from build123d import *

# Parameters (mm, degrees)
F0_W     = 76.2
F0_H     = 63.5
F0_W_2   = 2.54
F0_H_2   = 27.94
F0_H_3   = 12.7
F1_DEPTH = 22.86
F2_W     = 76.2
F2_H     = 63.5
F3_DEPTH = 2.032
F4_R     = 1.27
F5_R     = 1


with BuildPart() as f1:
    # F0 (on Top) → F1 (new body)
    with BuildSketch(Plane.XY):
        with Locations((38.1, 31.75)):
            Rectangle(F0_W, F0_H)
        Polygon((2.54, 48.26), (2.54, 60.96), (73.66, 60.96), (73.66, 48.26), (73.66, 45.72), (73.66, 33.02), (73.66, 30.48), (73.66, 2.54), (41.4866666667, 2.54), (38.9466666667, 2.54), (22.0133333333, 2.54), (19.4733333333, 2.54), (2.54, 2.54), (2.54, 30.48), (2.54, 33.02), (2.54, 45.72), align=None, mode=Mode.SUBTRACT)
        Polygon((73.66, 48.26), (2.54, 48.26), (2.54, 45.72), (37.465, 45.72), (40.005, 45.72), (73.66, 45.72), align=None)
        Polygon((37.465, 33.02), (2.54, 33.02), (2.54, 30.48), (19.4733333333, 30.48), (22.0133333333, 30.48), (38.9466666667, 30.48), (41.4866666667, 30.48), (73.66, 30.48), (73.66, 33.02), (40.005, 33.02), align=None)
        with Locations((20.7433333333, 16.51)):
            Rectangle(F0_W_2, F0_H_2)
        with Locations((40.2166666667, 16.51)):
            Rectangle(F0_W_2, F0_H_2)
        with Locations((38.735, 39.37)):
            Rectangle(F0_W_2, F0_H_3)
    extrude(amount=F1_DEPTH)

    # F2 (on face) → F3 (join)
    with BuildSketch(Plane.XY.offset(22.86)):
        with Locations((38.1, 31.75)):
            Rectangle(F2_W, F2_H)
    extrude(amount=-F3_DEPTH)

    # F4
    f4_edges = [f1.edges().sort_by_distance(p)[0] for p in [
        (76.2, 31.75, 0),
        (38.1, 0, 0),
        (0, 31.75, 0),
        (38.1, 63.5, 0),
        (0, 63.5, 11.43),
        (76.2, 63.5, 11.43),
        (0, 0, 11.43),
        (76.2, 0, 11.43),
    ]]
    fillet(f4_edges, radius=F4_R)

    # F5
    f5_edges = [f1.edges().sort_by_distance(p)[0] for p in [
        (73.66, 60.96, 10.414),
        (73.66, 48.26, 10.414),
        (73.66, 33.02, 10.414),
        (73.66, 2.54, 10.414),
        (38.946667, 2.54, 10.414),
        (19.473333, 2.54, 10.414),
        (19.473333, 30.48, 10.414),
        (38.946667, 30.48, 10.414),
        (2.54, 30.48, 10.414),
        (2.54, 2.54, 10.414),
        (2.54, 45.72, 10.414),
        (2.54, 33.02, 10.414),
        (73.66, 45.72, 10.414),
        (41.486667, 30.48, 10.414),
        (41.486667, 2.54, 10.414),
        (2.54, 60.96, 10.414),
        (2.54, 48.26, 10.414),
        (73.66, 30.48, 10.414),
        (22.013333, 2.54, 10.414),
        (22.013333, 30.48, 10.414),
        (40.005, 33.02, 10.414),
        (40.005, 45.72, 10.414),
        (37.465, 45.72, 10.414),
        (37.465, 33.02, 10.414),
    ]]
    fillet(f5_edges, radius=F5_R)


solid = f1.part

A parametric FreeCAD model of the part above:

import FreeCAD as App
import Part
import Sketcher
Q = App.Units.Quantity


def edges_at(feature, points):
    """Names of the edges that pass closest to the given points."""
    edges = feature.Shape.Edges
    near = lambda p: min(range(len(edges)), key=lambda i: edges[i].distToShape(Part.Vertex(*p))[0])
    return sorted({f"Edge{near(p) + 1}" for p in points})

doc = App.newDocument("Part")
body = doc.addObject("PartDesign::Body", "Body")

# Sketch on XY plane
sketch1 = body.newObject("Sketcher::SketchObject", "Sketch")
sketch1.AttachmentSupport = (doc.getObject("XY_Plane"), [""])
sketch1.MapMode = "FlatFace"
sketch1.addGeometry([
    Part.LineSegment(App.Vector(0, 63.5, 0), App.Vector(0, 0, 0)),  # 0
    Part.LineSegment(App.Vector(0, 0, 0), App.Vector(76.2, 0, 0)),  # 1
    Part.LineSegment(App.Vector(76.2, 0, 0), App.Vector(76.2, 63.5, 0)),  # 2
    Part.LineSegment(App.Vector(76.2, 63.5, 0), App.Vector(0, 63.5, 0)),  # 3
    Part.LineSegment(App.Vector(2.54, 2.54, 0), App.Vector(2.54, 30.48, 0)),  # 4
    Part.LineSegment(App.Vector(2.54, 30.48, 0), App.Vector(19.473333, 30.48, 0)),  # 5
    Part.LineSegment(App.Vector(19.473333, 30.48, 0), App.Vector(19.473333, 2.54, 0)),  # 6
    Part.LineSegment(App.Vector(19.473333, 2.54, 0), App.Vector(2.54, 2.54, 0)),  # 7
    Part.LineSegment(App.Vector(22.013333, 30.48, 0), App.Vector(38.946667, 30.48, 0)),  # 8
    Part.LineSegment(App.Vector(38.946667, 30.48, 0), App.Vector(38.946667, 2.54, 0)),  # 9
    Part.LineSegment(App.Vector(38.946667, 2.54, 0), App.Vector(22.013333, 2.54, 0)),  # 10
    Part.LineSegment(App.Vector(22.013333, 2.54, 0), App.Vector(22.013333, 30.48, 0)),  # 11
    Part.LineSegment(App.Vector(41.486667, 30.48, 0), App.Vector(73.66, 30.48, 0)),  # 12
    Part.LineSegment(App.Vector(73.66, 30.48, 0), App.Vector(73.66, 2.54, 0)),  # 13
    Part.LineSegment(App.Vector(73.66, 2.54, 0), App.Vector(41.486667, 2.54, 0)),  # 14
    Part.LineSegment(App.Vector(41.486667, 2.54, 0), App.Vector(41.486667, 30.48, 0)),  # 15
    Part.LineSegment(App.Vector(2.54, 33.02, 0), App.Vector(2.54, 45.72, 0)),  # 16
    Part.LineSegment(App.Vector(2.54, 45.72, 0), App.Vector(37.465, 45.72, 0)),  # 17
    Part.LineSegment(App.Vector(37.465, 45.72, 0), App.Vector(37.465, 33.02, 0)),  # 18
    Part.LineSegment(App.Vector(37.465, 33.02, 0), App.Vector(2.54, 33.02, 0)),  # 19
    Part.LineSegment(App.Vector(40.005, 45.72, 0), App.Vector(73.66, 45.72, 0)),  # 20
    Part.LineSegment(App.Vector(73.66, 45.72, 0), App.Vector(73.66, 33.02, 0)),  # 21
    Part.LineSegment(App.Vector(73.66, 33.02, 0), App.Vector(40.005, 33.02, 0)),  # 22
    Part.LineSegment(App.Vector(40.005, 33.02, 0), App.Vector(40.005, 45.72, 0)),  # 23
    Part.LineSegment(App.Vector(2.54, 48.26, 0), App.Vector(2.54, 60.96, 0)),  # 24
    Part.LineSegment(App.Vector(2.54, 60.96, 0), App.Vector(73.66, 60.96, 0)),  # 25
    Part.LineSegment(App.Vector(73.66, 60.96, 0), App.Vector(73.66, 48.26, 0)),  # 26
    Part.LineSegment(App.Vector(73.66, 48.26, 0), App.Vector(2.54, 48.26, 0)),  # 27
], False)
sketch1.addConstraint([
    Sketcher.Constraint("Coincident", 0, 2, 1, 1),
    Sketcher.Constraint("Coincident", 1, 2, 2, 1),
    Sketcher.Constraint("Coincident", 2, 2, 3, 1),
    Sketcher.Constraint("Coincident", 3, 2, 0, 1),
    Sketcher.Constraint("Coincident", 4, 2, 5, 1),
    Sketcher.Constraint("Coincident", 5, 2, 6, 1),
    Sketcher.Constraint("Coincident", 6, 2, 7, 1),
    Sketcher.Constraint("Coincident", 7, 2, 4, 1),
    Sketcher.Constraint("Coincident", 8, 2, 9, 1),
    Sketcher.Constraint("Coincident", 9, 2, 10, 1),
    Sketcher.Constraint("Coincident", 10, 2, 11, 1),
    Sketcher.Constraint("Coincident", 11, 2, 8, 1),
    Sketcher.Constraint("Coincident", 12, 2, 13, 1),
    Sketcher.Constraint("Coincident", 13, 2, 14, 1),
    Sketcher.Constraint("Coincident", 14, 2, 15, 1),
    Sketcher.Constraint("Coincident", 15, 2, 12, 1),
    Sketcher.Constraint("Coincident", 16, 2, 17, 1),
    Sketcher.Constraint("Coincident", 17, 2, 18, 1),
    Sketcher.Constraint("Coincident", 18, 2, 19, 1),
    Sketcher.Constraint("Coincident", 19, 2, 16, 1),
    Sketcher.Constraint("Coincident", 20, 2, 21, 1),
    Sketcher.Constraint("Coincident", 21, 2, 22, 1),
    Sketcher.Constraint("Coincident", 22, 2, 23, 1),
    Sketcher.Constraint("Coincident", 23, 2, 20, 1),
    Sketcher.Constraint("Coincident", 24, 2, 25, 1),
    Sketcher.Constraint("Coincident", 25, 2, 26, 1),
    Sketcher.Constraint("Coincident", 26, 2, 27, 1),
    Sketcher.Constraint("Coincident", 27, 2, 24, 1),
    Sketcher.Constraint("Vertical", 0),
    Sketcher.Constraint("Horizontal", 1),
    Sketcher.Constraint("Vertical", 2),
    Sketcher.Constraint("Horizontal", 3),
    Sketcher.Constraint("Vertical", 4),
    Sketcher.Constraint("Horizontal", 5),
    Sketcher.Constraint("Vertical", 6),
    Sketcher.Constraint("Horizontal", 7),
    Sketcher.Constraint("Horizontal", 8),
    Sketcher.Constraint("Vertical", 9),
    Sketcher.Constraint("Horizontal", 10),
    Sketcher.Constraint("Vertical", 11),
    Sketcher.Constraint("Horizontal", 12),
    Sketcher.Constraint("Vertical", 13),
    Sketcher.Constraint("Horizontal", 14),
    Sketcher.Constraint("Vertical", 15),
    Sketcher.Constraint("Vertical", 16),
    Sketcher.Constraint("Horizontal", 17),
    Sketcher.Constraint("Vertical", 18),
    Sketcher.Constraint("Horizontal", 19),
    Sketcher.Constraint("Horizontal", 20),
    Sketcher.Constraint("Vertical", 21),
    Sketcher.Constraint("Horizontal", 22),
    Sketcher.Constraint("Vertical", 23),
    Sketcher.Constraint("Vertical", 24),
    Sketcher.Constraint("Horizontal", 25),
    Sketcher.Constraint("Vertical", 26),
    Sketcher.Constraint("Horizontal", 27),
    Sketcher.Constraint("Coincident", 0, 2, -1, 1),
    Sketcher.Constraint("Horizontal", 5, 2, 8, 2),
    Sketcher.Constraint("Horizontal", 7, 2, 9, 2),
    Sketcher.Constraint("Horizontal", 11, 2, 12, 2),
    Sketcher.Constraint("Horizontal", 10, 2, 13, 2),
    Sketcher.Constraint("Horizontal", 17, 2, 20, 2),
    Sketcher.Constraint("Horizontal", 19, 2, 21, 2),
    Sketcher.Constraint("Vertical", 7, 2, 16, 2),
    Sketcher.Constraint("Vertical", 13, 2, 20, 2),
    Sketcher.Constraint("Vertical", 19, 2, 24, 2),
    Sketcher.Constraint("Vertical", 21, 2, 25, 2),
    Sketcher.Constraint("Equal", 7, 8),
    Sketcher.Constraint("Equal", 23, 24),
    Sketcher.Constraint("DistanceX", 1, 1, 1, 2, Q("3 in")),
    Sketcher.Constraint("DistanceX", 25, 1, 25, 2, Q("2.8 in")),
    Sketcher.Constraint("DistanceY", 0, 2, 0, 1, Q("2.5 in")),
    Sketcher.Constraint("DistanceY", 4, 1, 4, 2, Q("1.1 in")),
    Sketcher.Constraint("DistanceY", 16, 1, 16, 2, Q("0.5 in")),
    Sketcher.Constraint("DistanceX", -1, 1, 4, 2, Q("0.1 in")),
    Sketcher.Constraint("DistanceY", -1, 1, 4, 2, Q("1.2 in")),
    Sketcher.Constraint("DistanceY", -1, 1, 16, 2, Q("1.8 in")),
    Sketcher.Constraint("DistanceY", -1, 1, 24, 2, Q("2.4 in")),
    Sketcher.Constraint("DistanceX", 6, 2, 10, 2, Q("0.1 in")),
    Sketcher.Constraint("DistanceX", 9, 2, 14, 2, Q("0.1 in")),
    Sketcher.Constraint("DistanceX", 18, 2, 22, 2, Q("0.1 in")),
    Sketcher.Constraint("DistanceX", 17, 1, 17, 2, Q("1.375 in")),
    Sketcher.Constraint("DistanceX", 5, 1, 5, 2, 16.933333),
])
pad1 = body.newObject("PartDesign::Pad", "Pad")
pad1.Profile = sketch1
pad1.Length = Q("0.9 in")

# Sketch on XY plane
sketch2 = body.newObject("Sketcher::SketchObject", "Sketch001")
sketch2.AttachmentSupport = (doc.getObject("XY_Plane"), [""])
sketch2.MapMode = "FlatFace"
sketch2.AttachmentOffset = App.Placement(App.Vector(0, 0, 0.9 * 25.4), App.Rotation())
sketch2.addGeometry([
    Part.LineSegment(App.Vector(0, 63.5, 0), App.Vector(0, 0, 0)),
    Part.LineSegment(App.Vector(0, 0, 0), App.Vector(76.2, 0, 0)),
    Part.LineSegment(App.Vector(76.2, 0, 0), App.Vector(76.2, 63.5, 0)),
    Part.LineSegment(App.Vector(76.2, 63.5, 0), App.Vector(0, 63.5, 0)),
], False)
sketch2.addConstraint([
    Sketcher.Constraint("Coincident", 0, 2, 1, 1),
    Sketcher.Constraint("Coincident", 1, 2, 2, 1),
    Sketcher.Constraint("Coincident", 2, 2, 3, 1),
    Sketcher.Constraint("Coincident", 3, 2, 0, 1),
    Sketcher.Constraint("Vertical", 0),
    Sketcher.Constraint("Horizontal", 1),
    Sketcher.Constraint("Vertical", 2),
    Sketcher.Constraint("Horizontal", 3),
    Sketcher.Constraint("Coincident", 0, 2, -1, 1),
    Sketcher.Constraint("DistanceX", 1, 1, 1, 2, Q("3 in")),
    Sketcher.Constraint("DistanceY", 0, 2, 0, 1, Q("2.5 in")),
])
pad2 = body.newObject("PartDesign::Pad", "Pad001")
pad2.Profile = sketch2
pad2.Length = Q("0.08 in")
pad2.Reversed = True
doc.recompute()

fillet = body.newObject("PartDesign::Fillet", "Fillet")
fillet.Base = (pad2, edges_at(pad2, [
    (76.2, 31.75, 0),
    (38.1, 0, 0),
    (0, 31.75, 0),
    (38.1, 63.5, 0),
    (0, 63.5, 11.43),
    (76.2, 63.5, 11.43),
    (0, 0, 11.43),
    (76.2, 0, 11.43),
]))
fillet.Radius = Q("0.05 in")
doc.recompute()

fillet2 = body.newObject("PartDesign::Fillet", "Fillet001")
fillet2.Base = (fillet, edges_at(fillet, [
    (73.66, 60.96, 10.414),
    (73.66, 48.26, 10.414),
    (73.66, 33.02, 10.414),
    (73.66, 2.54, 10.414),
    (38.947, 2.54, 10.414),
    (19.473, 2.54, 10.414),
    (19.473, 30.48, 10.414),
    (38.947, 30.48, 10.414),
    (2.54, 30.48, 10.414),
    (2.54, 2.54, 10.414),
    (2.54, 45.72, 10.414),
    (2.54, 33.02, 10.414),
    (73.66, 45.72, 10.414),
    (41.487, 30.48, 10.414),
    (41.487, 2.54, 10.414),
    (2.54, 60.96, 10.414),
    (2.54, 48.26, 10.414),
    (73.66, 30.48, 10.414),
    (22.013, 2.54, 10.414),
    (22.013, 30.48, 10.414),
    (40.005, 33.02, 10.414),
    (40.005, 45.72, 10.414),
    (37.465, 45.72, 10.414),
    (37.465, 33.02, 10.414),
]))
fillet2.Radius = 1

doc.recompute()
